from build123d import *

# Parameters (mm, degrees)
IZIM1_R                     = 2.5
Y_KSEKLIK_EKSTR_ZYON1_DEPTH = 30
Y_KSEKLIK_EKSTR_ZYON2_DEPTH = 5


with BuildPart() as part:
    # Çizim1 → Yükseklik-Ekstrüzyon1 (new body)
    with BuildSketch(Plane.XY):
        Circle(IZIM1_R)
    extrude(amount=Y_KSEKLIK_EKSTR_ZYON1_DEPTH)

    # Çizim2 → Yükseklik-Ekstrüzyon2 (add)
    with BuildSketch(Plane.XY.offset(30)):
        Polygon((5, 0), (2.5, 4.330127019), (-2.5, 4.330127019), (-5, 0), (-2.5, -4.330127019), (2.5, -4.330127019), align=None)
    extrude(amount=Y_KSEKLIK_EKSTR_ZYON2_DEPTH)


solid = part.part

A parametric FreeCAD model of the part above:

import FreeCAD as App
import Part
import Sketcher

V = App.Vector
Q = App.Units.Quantity


def add_polygon(sketch, points):
    """Adds a closed chain of lines whose ends are joined by coincident constraints."""
    first, n = sketch.GeometryCount, len(points)
    for a, b in zip(points, points[1:] + points[:1]):
        sketch.addGeometry(Part.LineSegment(App.Vector(*a, 0), App.Vector(*b, 0)), False)
    for i in range(n):
        sketch.addConstraint(Sketcher.Constraint("Coincident", first + i, 2, first + (i + 1) % n, 1))

doc = App.newDocument("Part")
body = doc.addObject("PartDesign::Body", "Body")

sketch1 = doc.addObject("Sketcher::SketchObject", "Sketch")
body.addObject(sketch1)
sketch1.AttachmentSupport = (doc.XY_Plane, [""])
sketch1.MapMode = "FlatFace"
sketch1.addGeometry(Part.Circle(V(0, 0, 0), V(0, 0, 1), 2.5), False)
sketch1.addConstraint(Sketcher.Constraint("Coincident", 0, 3, -1, 1))
sketch1.addConstraint(Sketcher.Constraint("Diameter", 0, Q("5 mm")))
pad1 = doc.addObject("PartDesign::Pad", "Pad")
body.addObject(pad1)
pad1.Profile = sketch1
pad1.Length = 30

sketch2 = doc.addObject("Sketcher::SketchObject", "Sketch001")
body.addObject(sketch2)
sketch2.AttachmentSupport = (doc.XY_Plane, [""])
sketch2.MapMode = "FlatFace"
sketch2.AttachmentOffset = App.Placement(V(0, 0, 30), App.Rotation())
add_polygon(sketch2, [(5, 0), (2, 4), (-2, 4), (-5, 0), (-2, -4), (2, -4)])
sketch2.addConstraint(Sketcher.Constraint("Horizontal", 1))
sketch2.addConstraint(Sketcher.Constraint("Horizontal", 4))
sketch2.addConstraint(Sketcher.Constraint("Symmetric", 0, 2, 3, 2, -1, 1))
sketch2.addConstraint(Sketcher.Constraint("Symmetric", 2, 2, 5, 2, -1, 1))
sketch2.addConstraint(Sketcher.Constraint("PointOnObject", 2, 2, -1))
sketch2.addConstraint(Sketcher.Constraint("Parallel", 2, 5))
sketch2.addConstraint(Sketcher.Constraint("Vertical", 1, 2, 3, 2))
sketch2.addConstraint(Sketcher.Constraint("DistanceX", 1, 2, 1, 1, Q("5 mm")))
sketch2.addConstraint(Sketcher.Constraint("Angle", 0, Q("120 deg")))
sketch2.addConstraint(Sketcher.Constraint("Distance", 0, Q("5 mm")))
pad2 = doc.addObject("PartDesign::Pad", "Pad001")
body.addObject(pad2)
pad2.Profile = sketch2
pad2.Length = 5

doc.recompute()
